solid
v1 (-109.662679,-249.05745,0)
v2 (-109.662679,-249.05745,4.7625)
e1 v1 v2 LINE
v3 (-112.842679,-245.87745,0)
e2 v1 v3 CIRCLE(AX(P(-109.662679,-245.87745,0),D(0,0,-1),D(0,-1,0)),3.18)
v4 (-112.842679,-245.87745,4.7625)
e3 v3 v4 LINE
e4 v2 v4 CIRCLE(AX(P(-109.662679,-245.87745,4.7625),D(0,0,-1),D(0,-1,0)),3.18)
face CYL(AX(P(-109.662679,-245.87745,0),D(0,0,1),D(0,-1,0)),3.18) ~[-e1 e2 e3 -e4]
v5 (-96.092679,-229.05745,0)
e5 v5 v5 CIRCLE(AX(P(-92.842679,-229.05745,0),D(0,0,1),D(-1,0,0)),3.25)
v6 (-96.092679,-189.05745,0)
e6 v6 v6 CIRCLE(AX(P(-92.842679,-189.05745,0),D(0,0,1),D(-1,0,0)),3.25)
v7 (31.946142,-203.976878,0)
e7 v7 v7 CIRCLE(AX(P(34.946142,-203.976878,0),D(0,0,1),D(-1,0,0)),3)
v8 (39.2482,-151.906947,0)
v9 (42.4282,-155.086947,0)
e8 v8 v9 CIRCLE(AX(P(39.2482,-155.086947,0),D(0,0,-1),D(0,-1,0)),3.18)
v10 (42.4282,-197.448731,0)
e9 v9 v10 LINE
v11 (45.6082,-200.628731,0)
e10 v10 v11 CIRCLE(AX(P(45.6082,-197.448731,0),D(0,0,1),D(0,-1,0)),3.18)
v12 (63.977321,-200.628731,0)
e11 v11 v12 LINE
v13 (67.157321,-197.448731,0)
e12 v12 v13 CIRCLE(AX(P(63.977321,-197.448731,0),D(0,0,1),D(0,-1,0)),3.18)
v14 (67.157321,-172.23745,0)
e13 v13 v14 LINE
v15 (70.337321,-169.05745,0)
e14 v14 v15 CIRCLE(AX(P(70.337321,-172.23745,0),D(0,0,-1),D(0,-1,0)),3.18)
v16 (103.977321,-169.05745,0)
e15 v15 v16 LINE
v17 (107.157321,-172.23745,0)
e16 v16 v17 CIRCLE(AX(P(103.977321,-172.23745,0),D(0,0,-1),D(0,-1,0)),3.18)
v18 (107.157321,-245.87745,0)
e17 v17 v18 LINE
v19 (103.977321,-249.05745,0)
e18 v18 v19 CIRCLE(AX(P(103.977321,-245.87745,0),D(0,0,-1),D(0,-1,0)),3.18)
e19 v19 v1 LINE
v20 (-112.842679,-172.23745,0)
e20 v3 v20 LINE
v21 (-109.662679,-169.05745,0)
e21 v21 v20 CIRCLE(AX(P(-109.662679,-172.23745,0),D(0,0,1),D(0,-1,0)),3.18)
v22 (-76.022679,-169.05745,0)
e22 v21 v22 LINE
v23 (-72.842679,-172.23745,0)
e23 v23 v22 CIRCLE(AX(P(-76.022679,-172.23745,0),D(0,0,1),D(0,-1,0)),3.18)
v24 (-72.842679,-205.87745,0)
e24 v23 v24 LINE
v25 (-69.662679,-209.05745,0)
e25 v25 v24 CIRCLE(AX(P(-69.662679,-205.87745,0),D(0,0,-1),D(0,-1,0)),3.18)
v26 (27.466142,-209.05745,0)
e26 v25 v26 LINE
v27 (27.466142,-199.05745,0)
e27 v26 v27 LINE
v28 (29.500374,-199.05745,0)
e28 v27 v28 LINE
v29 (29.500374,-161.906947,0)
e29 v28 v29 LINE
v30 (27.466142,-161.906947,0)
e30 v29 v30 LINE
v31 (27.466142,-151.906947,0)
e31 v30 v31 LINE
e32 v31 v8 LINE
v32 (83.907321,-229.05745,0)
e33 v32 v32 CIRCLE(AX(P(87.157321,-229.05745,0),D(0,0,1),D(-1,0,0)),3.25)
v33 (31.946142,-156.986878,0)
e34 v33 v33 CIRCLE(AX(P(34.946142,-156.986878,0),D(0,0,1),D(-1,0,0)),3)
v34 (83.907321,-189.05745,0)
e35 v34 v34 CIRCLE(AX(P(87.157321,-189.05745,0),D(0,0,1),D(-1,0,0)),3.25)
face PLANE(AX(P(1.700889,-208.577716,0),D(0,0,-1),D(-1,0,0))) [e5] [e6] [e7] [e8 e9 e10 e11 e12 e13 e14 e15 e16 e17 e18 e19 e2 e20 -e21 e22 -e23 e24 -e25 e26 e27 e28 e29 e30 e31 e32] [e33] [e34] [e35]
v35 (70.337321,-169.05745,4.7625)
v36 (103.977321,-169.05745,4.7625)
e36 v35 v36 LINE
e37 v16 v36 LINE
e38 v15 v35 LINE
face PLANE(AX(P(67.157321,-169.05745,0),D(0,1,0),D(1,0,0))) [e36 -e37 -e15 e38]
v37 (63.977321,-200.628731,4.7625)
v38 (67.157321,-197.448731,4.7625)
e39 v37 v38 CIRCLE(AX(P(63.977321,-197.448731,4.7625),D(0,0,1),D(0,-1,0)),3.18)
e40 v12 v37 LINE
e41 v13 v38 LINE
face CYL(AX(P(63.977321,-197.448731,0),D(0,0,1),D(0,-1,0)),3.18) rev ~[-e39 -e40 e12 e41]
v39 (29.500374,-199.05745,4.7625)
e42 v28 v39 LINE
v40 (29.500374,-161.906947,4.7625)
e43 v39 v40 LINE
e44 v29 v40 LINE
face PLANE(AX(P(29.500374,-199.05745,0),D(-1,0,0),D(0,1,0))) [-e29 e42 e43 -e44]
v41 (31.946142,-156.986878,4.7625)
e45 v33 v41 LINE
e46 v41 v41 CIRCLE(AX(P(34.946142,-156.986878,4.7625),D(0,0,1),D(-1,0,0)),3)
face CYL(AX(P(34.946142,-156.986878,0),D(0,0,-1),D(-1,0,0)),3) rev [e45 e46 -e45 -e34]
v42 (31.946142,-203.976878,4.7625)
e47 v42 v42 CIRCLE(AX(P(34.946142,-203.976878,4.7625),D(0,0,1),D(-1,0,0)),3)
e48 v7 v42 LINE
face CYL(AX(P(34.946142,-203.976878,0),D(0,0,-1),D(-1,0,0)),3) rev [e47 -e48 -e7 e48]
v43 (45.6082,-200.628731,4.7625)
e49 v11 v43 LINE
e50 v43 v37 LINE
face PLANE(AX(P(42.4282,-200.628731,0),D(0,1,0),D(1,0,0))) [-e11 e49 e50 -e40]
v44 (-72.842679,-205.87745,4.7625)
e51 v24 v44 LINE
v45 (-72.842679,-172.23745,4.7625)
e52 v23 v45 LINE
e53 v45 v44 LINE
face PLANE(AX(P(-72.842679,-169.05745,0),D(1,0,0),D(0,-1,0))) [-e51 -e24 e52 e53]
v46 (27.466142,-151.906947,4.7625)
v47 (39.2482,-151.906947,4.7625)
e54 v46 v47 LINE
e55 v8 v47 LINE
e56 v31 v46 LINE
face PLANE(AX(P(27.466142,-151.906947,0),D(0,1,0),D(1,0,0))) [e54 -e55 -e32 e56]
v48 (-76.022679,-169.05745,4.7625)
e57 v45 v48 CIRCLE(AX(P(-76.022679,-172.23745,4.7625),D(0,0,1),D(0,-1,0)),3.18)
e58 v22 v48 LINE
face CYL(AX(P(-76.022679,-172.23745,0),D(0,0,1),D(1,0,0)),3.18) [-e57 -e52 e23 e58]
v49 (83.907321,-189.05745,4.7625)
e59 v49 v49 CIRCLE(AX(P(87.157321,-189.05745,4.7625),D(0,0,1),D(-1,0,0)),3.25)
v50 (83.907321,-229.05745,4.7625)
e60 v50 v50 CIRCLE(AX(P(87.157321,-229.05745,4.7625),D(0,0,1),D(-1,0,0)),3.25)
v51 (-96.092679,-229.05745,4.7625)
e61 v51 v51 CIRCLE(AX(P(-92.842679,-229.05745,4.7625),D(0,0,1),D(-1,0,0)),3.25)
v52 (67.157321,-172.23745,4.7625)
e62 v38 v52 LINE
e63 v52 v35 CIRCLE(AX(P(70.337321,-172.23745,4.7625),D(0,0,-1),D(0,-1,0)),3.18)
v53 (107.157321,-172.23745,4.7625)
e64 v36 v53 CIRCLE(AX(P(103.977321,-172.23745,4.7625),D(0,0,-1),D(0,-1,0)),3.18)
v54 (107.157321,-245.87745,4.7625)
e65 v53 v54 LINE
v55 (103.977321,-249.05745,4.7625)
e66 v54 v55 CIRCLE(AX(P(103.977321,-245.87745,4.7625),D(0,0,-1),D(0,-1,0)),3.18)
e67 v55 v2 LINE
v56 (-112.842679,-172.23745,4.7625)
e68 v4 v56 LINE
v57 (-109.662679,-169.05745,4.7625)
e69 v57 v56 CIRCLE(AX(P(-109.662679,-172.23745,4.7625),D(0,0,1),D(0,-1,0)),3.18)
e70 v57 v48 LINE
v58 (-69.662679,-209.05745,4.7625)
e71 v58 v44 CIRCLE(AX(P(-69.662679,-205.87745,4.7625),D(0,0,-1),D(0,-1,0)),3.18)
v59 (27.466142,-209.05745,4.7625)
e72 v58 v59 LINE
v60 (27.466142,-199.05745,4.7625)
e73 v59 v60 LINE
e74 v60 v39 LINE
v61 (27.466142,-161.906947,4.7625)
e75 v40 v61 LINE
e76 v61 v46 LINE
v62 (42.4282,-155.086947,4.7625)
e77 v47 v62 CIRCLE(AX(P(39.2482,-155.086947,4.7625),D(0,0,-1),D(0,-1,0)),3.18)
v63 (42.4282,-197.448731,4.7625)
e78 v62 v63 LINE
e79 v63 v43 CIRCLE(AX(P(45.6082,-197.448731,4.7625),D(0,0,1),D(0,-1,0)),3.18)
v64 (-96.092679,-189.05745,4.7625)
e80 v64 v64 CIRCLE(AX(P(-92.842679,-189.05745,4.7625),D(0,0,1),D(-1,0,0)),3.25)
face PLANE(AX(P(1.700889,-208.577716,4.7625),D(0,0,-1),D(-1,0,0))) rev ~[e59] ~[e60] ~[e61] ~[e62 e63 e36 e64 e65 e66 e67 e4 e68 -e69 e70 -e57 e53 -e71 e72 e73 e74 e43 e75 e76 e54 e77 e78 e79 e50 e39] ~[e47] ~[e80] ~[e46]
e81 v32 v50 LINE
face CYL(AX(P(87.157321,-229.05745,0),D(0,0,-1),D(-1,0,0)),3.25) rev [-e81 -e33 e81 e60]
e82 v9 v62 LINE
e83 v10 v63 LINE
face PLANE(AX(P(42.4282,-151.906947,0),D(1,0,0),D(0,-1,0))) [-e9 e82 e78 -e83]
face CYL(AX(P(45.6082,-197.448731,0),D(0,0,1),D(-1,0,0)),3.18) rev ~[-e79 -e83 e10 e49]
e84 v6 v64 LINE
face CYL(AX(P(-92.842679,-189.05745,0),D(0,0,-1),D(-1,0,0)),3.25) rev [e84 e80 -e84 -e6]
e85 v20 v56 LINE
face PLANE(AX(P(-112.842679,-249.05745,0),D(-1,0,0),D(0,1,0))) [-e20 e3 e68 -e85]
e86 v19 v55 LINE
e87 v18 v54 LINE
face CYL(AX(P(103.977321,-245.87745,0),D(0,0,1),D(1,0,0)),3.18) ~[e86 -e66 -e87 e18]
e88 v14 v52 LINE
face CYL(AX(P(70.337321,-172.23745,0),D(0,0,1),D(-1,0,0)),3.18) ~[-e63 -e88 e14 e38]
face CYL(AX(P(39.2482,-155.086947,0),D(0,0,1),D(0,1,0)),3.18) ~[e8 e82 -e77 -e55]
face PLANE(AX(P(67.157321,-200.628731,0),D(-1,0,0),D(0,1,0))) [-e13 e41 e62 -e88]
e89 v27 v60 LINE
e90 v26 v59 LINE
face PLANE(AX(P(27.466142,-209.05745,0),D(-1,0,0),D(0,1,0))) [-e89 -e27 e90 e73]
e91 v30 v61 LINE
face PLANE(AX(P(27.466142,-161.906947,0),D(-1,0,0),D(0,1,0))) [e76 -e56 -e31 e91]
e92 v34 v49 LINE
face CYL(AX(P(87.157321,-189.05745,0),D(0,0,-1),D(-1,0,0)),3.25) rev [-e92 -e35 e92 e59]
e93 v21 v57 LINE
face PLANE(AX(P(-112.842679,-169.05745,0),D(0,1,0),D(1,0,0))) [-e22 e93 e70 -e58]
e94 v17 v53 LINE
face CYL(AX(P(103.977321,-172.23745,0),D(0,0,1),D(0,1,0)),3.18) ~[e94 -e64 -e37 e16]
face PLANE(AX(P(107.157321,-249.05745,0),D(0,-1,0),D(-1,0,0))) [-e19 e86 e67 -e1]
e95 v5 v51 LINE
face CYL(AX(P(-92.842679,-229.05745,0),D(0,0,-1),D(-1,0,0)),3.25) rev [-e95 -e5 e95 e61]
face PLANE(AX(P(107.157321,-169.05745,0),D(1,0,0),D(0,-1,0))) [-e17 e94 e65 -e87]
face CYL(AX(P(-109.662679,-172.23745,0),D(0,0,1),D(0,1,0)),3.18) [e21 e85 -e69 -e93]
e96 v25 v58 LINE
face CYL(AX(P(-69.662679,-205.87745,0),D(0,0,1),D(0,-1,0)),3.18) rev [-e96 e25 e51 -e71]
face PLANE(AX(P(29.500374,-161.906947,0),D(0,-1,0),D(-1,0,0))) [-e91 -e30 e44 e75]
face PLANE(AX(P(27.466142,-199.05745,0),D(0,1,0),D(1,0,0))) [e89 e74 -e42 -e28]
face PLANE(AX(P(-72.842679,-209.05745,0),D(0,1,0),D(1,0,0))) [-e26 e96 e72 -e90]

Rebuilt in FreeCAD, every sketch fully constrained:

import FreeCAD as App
import Part
import Sketcher
Q = App.Units.Quantity


def edges_at(feature, points):
    """Names of the edges that pass closest to the given points."""
    edges = feature.Shape.Edges
    near = lambda p: min(range(len(edges)), key=lambda i: edges[i].distToShape(Part.Vertex(*p))[0])
    return sorted({f"Edge{near(p) + 1}" for p in points})

doc = App.newDocument("Part")
params = doc.addObject("Spreadsheet::Sheet", "Params")
for row, (alias, value) in enumerate([
    ("sketch1_diameter", "6 mm"),
    ("sketch1_diameter2", "6.5 mm"),
    ("sketch1_width", "40 mm"),
    ("sketch1_width2", "220 mm"),
    ("sketch1_height", "10 mm"),
    ("pad1_length", "4.7625 mm"),
    ("fillet_radius", "3.18 mm"),
], start=1):
    params.set(f"A{row}", alias)
    params.set(f"B{row}", "=" + value)
    params.setAlias(f"B{row}", alias)

body = doc.addObject("PartDesign::Body", "Body")

# Sketch on XY plane
sketch1 = body.newObject("Sketcher::SketchObject", "Sketch")
sketch1.AttachmentSupport = (doc.getObject("XY_Plane"), [""])
sketch1.MapMode = "FlatFace"
sketch1.addGeometry([
    Part.LineSegment(App.Vector(27.5, -151.9, 0), App.Vector(27.5, -161.9, 0)),  # 0
    Part.LineSegment(App.Vector(27.5, -161.9, 0), App.Vector(29.5, -161.9, 0)),  # 1
    Part.LineSegment(App.Vector(29.5, -161.9, 0), App.Vector(29.5, -199.1, 0)),  # 2
    Part.LineSegment(App.Vector(29.5, -199.1, 0), App.Vector(27.5, -199.1, 0)),  # 3
    Part.LineSegment(App.Vector(27.5, -199.1, 0), App.Vector(27.5, -209.1, 0)),  # 4
    Part.LineSegment(App.Vector(27.5, -209.1, 0), App.Vector(-72.8, -209.1, 0)),  # 5
    Part.LineSegment(App.Vector(-72.8, -209.1, 0), App.Vector(-72.8, -169.1, 0)),  # 6
    Part.LineSegment(App.Vector(-72.8, -169.1, 0), App.Vector(-112.8, -169.1, 0)),  # 7
    Part.LineSegment(App.Vector(-112.8, -169.1, 0), App.Vector(-112.8, -249.1, 0)),  # 8
    Part.LineSegment(App.Vector(-112.8, -249.1, 0), App.Vector(107.2, -249.1, 0)),  # 9
    Part.LineSegment(App.Vector(107.2, -249.1, 0), App.Vector(107.2, -169.1, 0)),  # 10
    Part.LineSegment(App.Vector(107.2, -169.1, 0), App.Vector(67.2, -169.1, 0)),  # 11
    Part.LineSegment(App.Vector(67.2, -169.1, 0), App.Vector(67.2, -200.6, 0)),  # 12
    Part.LineSegment(App.Vector(67.2, -200.6, 0), App.Vector(42.4, -200.6, 0)),  # 13
    Part.LineSegment(App.Vector(42.4, -200.6, 0), App.Vector(42.4, -151.9, 0)),  # 14
    Part.LineSegment(App.Vector(42.4, -151.9, 0), App.Vector(27.5, -151.9, 0)),  # 15
    Part.Circle(App.Vector(87.2, -229.1, 0), App.Vector(0, 0, 1), 3.2),  # 16
    Part.Circle(App.Vector(34.9, -204, 0), App.Vector(0, 0, 1), 3),  # 17
    Part.Circle(App.Vector(-92.8, -229.1, 0), App.Vector(0, 0, 1), 3.2),  # 18
    Part.Circle(App.Vector(87.2, -189.1, 0), App.Vector(0, 0, 1), 3.2),  # 19
    Part.Circle(App.Vector(34.9, -157, 0), App.Vector(0, 0, 1), 3),  # 20
    Part.Circle(App.Vector(-92.8, -189.1, 0), App.Vector(0, 0, 1), 3.2),  # 21
], False)
sketch1.addConstraint([
    Sketcher.Constraint("Coincident", 0, 2, 1, 1),
    Sketcher.Constraint("Coincident", 1, 2, 2, 1),
    Sketcher.Constraint("Coincident", 2, 2, 3, 1),
    Sketcher.Constraint("Coincident", 3, 2, 4, 1),
    Sketcher.Constraint("Coincident", 4, 2, 5, 1),
    Sketcher.Constraint("Coincident", 5, 2, 6, 1),
    Sketcher.Constraint("Coincident", 6, 2, 7, 1),
    Sketcher.Constraint("Coincident", 7, 2, 8, 1),
    Sketcher.Constraint("Coincident", 8, 2, 9, 1),
    Sketcher.Constraint("Coincident", 9, 2, 10, 1),
    Sketcher.Constraint("Coincident", 10, 2, 11, 1),
    Sketcher.Constraint("Coincident", 11, 2, 12, 1),
    Sketcher.Constraint("Coincident", 12, 2, 13, 1),
    Sketcher.Constraint("Coincident", 13, 2, 14, 1),
    Sketcher.Constraint("Coincident", 14, 2, 15, 1),
    Sketcher.Constraint("Coincident", 15, 2, 0, 1),
    Sketcher.Constraint("Vertical", 0),
    Sketcher.Constraint("Horizontal", 1),
    Sketcher.Constraint("Vertical", 2),
    Sketcher.Constraint("Horizontal", 3),
    Sketcher.Constraint("Vertical", 4),
    Sketcher.Constraint("Horizontal", 5),
    Sketcher.Constraint("Vertical", 6),
    Sketcher.Constraint("Horizontal", 7),
    Sketcher.Constraint("Vertical", 8),
    Sketcher.Constraint("Horizontal", 9),
    Sketcher.Constraint("Vertical", 10),
    Sketcher.Constraint("Horizontal", 11),
    Sketcher.Constraint("Vertical", 12),
    Sketcher.Constraint("Horizontal", 13),
    Sketcher.Constraint("Vertical", 14),
    Sketcher.Constraint("Horizontal", 15),
    Sketcher.Constraint("Equal", 16, 18),
    Sketcher.Constraint("Equal", 18, 19),
    Sketcher.Constraint("Equal", 17, 20),
    Sketcher.Constraint("Equal", 19, 21),
    Sketcher.Constraint("Horizontal", 16, 3, 18, 3),
    Sketcher.Constraint("Horizontal", 19, 3, 21, 3),
    Sketcher.Constraint("Horizontal", 7, 2, 10, 2),
    Sketcher.Constraint("Vertical", 16, 3, 19, 3),
    Sketcher.Constraint("Vertical", 17, 3, 20, 3),
    Sketcher.Constraint("Vertical", 18, 3, 21, 3),
    Sketcher.Constraint("Vertical", 0, 2, 3, 2),
    Sketcher.Constraint("Equal", 7, 11),
    Sketcher.Constraint("Equal", 0, 4),
    Sketcher.Constraint("Equal", 11, 6),
    Sketcher.Constraint("Diameter", 17, Q("6 mm")),
    Sketcher.Constraint("Diameter", 16, Q("6.5 mm")),
    Sketcher.Constraint("DistanceX", 7, 2, 7, 1, Q("40 mm")),
    Sketcher.Constraint("DistanceX", 9, 1, 9, 2, Q("220 mm")),
    Sketcher.Constraint("DistanceY", 0, 2, 0, 1, Q("10 mm")),
    Sketcher.Constraint("DistanceY", 8, 2, 8, 1, Q("80 mm")),
    Sketcher.Constraint("DistanceX", 18, 3, 16, 3, Q("180 mm")),
    Sketcher.Constraint("DistanceY", 16, 3, 19, 3, Q("40 mm")),
    Sketcher.Constraint("DistanceY", 2, 2, 19, 3, Q("10 mm")),
    Sketcher.Constraint("DistanceX", 18, 3, 5, 2, Q("20 mm")),
    Sketcher.Constraint("DistanceY", 17, 3, 20, 3, Q("46.99 mm")),
    Sketcher.Constraint("DistanceX", 0, 2, 20, 3, Q("7.48 mm")),
    Sketcher.Constraint("DistanceX", 1, 1, 1, 2, Q("2.034232 mm")),
    Sketcher.Constraint("DistanceX", 5, 2, 5, 1, Q("100.308821 mm")),
    Sketcher.Constraint("DistanceX", 13, 2, 13, 1, Q("24.729121 mm")),
    Sketcher.Constraint("DistanceY", 12, 2, 12, 1, Q("31.571281 mm")),
    Sketcher.Constraint("DistanceX", -1, 1, 13, 2, Q("42.4282 mm")),
    Sketcher.Constraint("DistanceY", 2, 2, 2, 1, Q("37.150502 mm")),
    Sketcher.Constraint("DistanceY", 16, 3, -1, 1, Q("229.05745 mm")),
    Sketcher.Constraint("DistanceY", 16, 3, 17, 3, Q("25.080572 mm")),
])
sketch1.setExpression("Constraints[46]", "Params.sketch1_diameter")
sketch1.setExpression("Constraints[47]", "Params.sketch1_diameter2")
sketch1.setExpression("Constraints[48]", "Params.sketch1_width")
sketch1.setExpression("Constraints[49]", "Params.sketch1_width2")
sketch1.setExpression("Constraints[50]", "Params.sketch1_height")
pad1 = body.newObject("PartDesign::Pad", "Pad")
pad1.Profile = sketch1
pad1.setExpression("Length", "Params.pad1_length")
doc.recompute()

fillet = body.newObject("PartDesign::Fillet", "Fillet")
fillet.Base = (pad1, edges_at(pad1, [
    (-112.843, -169.057, 2.381),
    (-72.843, -169.057, 2.381),
    (-72.843, -209.057, 2.381),
    (42.428, -151.907, 2.381),
    (42.428, -200.629, 2.381),
    (67.157, -200.629, 2.381),
    (67.157, -169.057, 2.381),
    (107.157, -169.057, 2.381),
    (107.157, -249.057, 2.381),
    (-112.843, -249.057, 2.381),
]))
fillet.setExpression("Radius", "Params.fillet_radius")

doc.recompute()
